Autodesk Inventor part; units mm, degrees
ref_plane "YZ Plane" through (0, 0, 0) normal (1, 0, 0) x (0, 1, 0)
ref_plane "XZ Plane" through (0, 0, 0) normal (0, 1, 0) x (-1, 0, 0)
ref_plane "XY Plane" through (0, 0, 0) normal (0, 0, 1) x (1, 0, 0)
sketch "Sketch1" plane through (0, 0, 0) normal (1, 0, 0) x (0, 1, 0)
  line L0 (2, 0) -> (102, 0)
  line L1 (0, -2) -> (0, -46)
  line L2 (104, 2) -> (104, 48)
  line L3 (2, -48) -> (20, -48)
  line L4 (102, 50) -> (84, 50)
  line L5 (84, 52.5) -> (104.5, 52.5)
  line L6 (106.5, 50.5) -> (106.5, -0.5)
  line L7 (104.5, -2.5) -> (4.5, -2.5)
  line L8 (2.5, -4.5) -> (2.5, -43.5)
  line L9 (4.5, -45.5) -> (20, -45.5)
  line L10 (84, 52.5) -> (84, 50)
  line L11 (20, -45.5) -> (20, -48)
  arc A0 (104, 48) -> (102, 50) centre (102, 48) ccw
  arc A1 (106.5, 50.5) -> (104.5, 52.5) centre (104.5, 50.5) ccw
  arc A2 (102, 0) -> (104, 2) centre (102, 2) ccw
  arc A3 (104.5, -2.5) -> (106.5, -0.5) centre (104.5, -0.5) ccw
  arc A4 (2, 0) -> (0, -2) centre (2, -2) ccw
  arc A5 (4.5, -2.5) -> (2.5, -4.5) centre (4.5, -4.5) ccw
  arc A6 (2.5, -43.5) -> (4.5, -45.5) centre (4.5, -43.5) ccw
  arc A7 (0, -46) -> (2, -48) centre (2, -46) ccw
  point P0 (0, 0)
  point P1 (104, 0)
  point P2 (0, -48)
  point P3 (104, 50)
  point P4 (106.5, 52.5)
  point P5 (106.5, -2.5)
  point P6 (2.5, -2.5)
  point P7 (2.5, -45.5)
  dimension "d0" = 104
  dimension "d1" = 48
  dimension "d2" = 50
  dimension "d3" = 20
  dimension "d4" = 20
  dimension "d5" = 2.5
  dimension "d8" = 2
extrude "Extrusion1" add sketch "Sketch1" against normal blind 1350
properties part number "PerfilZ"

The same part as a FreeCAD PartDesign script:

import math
import FreeCAD as App
import Part
import Sketcher

V = App.Vector
Q = App.Units.Quantity

doc = App.newDocument("Part")
body = doc.addObject("PartDesign::Body", "Body")

sketch1 = body.newObject("Sketcher::SketchObject", "Sketch")
sketch1.AttachmentSupport = (doc.getObject("YZ_Plane"), [""])
sketch1.MapMode = "FlatFace"
sketch1.addGeometry([
    Part.LineSegment(V(102, 0, 0), V(2, 0, 0)),
    Part.ArcOfCircle(Part.Circle(V(2, -2, 0), V(0, 0, 1), 2), math.radians(90), math.radians(180)),
    Part.LineSegment(V(0, -2, 0), V(0, -46, 0)),
    Part.ArcOfCircle(Part.Circle(V(2, -46, 0), V(0, 0, 1), 2), math.radians(180), math.radians(270)),
    Part.LineSegment(V(2, -48, 0), V(20, -48, 0)),
    Part.LineSegment(V(20, -48, 0), V(20, -45.5, 0)),
    Part.LineSegment(V(20, -45.5, 0), V(4.5, -45.5, 0)),
    Part.ArcOfCircle(Part.Circle(V(4.5, -43.5, 0), V(0, 0, 1), 2), math.radians(180), math.radians(270)),
    Part.LineSegment(V(2.5, -43.5, 0), V(2.5, -4.5, 0)),
    Part.ArcOfCircle(Part.Circle(V(4.5, -4.5, 0), V(0, 0, 1), 2), math.radians(90), math.radians(180)),
    Part.LineSegment(V(4.5, -2.5, 0), V(104.5, -2.5, 0)),
    Part.ArcOfCircle(Part.Circle(V(104.5, -0.5, 0), V(0, 0, 1), 2), math.radians(-90), math.radians(0)),
    Part.LineSegment(V(106.5, -0.5, 0), V(106.5, 50.5, 0)),
    Part.ArcOfCircle(Part.Circle(V(104.5, 50.5, 0), V(0, 0, 1), 2), math.radians(0), math.radians(90)),
    Part.LineSegment(V(104.5, 52.5, 0), V(84, 52.5, 0)),
    Part.LineSegment(V(84, 52.5, 0), V(84, 50, 0)),
    Part.LineSegment(V(84, 50, 0), V(102, 50, 0)),
    Part.ArcOfCircle(Part.Circle(V(102, 48, 0), V(0, 0, 1), 2), math.radians(0), math.radians(90)),
    Part.LineSegment(V(104, 48, 0), V(104, 2, 0)),
    Part.ArcOfCircle(Part.Circle(V(102, 2, 0), V(0, 0, 1), 2), math.radians(-90), math.radians(0)),
], False)
sketch1.addConstraint([
    Sketcher.Constraint("Tangent", 0, 2, 1, 1),
    Sketcher.Constraint("Tangent", 1, 2, 2, 1),
    Sketcher.Constraint("Tangent", 2, 2, 3, 1),
    Sketcher.Constraint("Tangent", 3, 2, 4, 1),
    Sketcher.Constraint("Coincident", 4, 2, 5, 1),
    Sketcher.Constraint("Coincident", 5, 2, 6, 1),
    Sketcher.Constraint("Tangent", 6, 2, 7, 2),
    Sketcher.Constraint("Tangent", 7, 1, 8, 1),
    Sketcher.Constraint("Tangent", 8, 2, 9, 2),
    Sketcher.Constraint("Tangent", 9, 1, 10, 1),
    Sketcher.Constraint("Tangent", 10, 2, 11, 1),
    Sketcher.Constraint("Tangent", 11, 2, 12, 1),
    Sketcher.Constraint("Tangent", 12, 2, 13, 1),
    Sketcher.Constraint("Tangent", 13, 2, 14, 1),
    Sketcher.Constraint("Coincident", 14, 2, 15, 1),
    Sketcher.Constraint("Coincident", 15, 2, 16, 1),
    Sketcher.Constraint("Tangent", 16, 2, 17, 2),
    Sketcher.Constraint("Tangent", 17, 1, 18, 1),
    Sketcher.Constraint("Tangent", 18, 2, 19, 2),
    Sketcher.Constraint("Tangent", 19, 1, 0, 1),
    Sketcher.Constraint("Horizontal", 0),
    Sketcher.Constraint("Vertical", 2),
    Sketcher.Constraint("Horizontal", 4),
    Sketcher.Constraint("Vertical", 5),
    Sketcher.Constraint("Horizontal", 6),
    Sketcher.Constraint("Vertical", 8),
    Sketcher.Constraint("Horizontal", 10),
    Sketcher.Constraint("Vertical", 12),
    Sketcher.Constraint("Horizontal", 14),
    Sketcher.Constraint("Vertical", 15),
    Sketcher.Constraint("Horizontal", 16),
    Sketcher.Constraint("Vertical", 18),
    Sketcher.Constraint("Equal", 1, 3),
    Sketcher.Constraint("Equal", 3, 7),
    Sketcher.Constraint("Equal", 7, 9),
    Sketcher.Constraint("Equal", 9, 11),
    Sketcher.Constraint("Equal", 11, 13),
    Sketcher.Constraint("Equal", 13, 17),
    Sketcher.Constraint("Equal", 17, 19),
    Sketcher.Constraint("PointOnObject", 0, 2, -1),
    Sketcher.Constraint("PointOnObject", 1, 2, -2),
    Sketcher.Constraint("Equal", 0, 10),
    Sketcher.Constraint("Equal", 4, 16),
    Sketcher.Constraint("Equal", 5, 15),
    Sketcher.Constraint("Radius", 1, Q("2 mm")),
    Sketcher.Constraint("DistanceY", 5, 1, 5, 2, Q("2.5 mm")),
    Sketcher.Constraint("DistanceY", -1, 1, 17, 3, Q("48 mm")),
    Sketcher.Constraint("DistanceY", 3, 2, -1, 1, Q("48 mm")),
    Sketcher.Constraint("DistanceX", -1, 1, 4, 2, Q("20 mm")),
    Sketcher.Constraint("DistanceX", -1, 1, 17, 1, Q("104 mm")),
    Sketcher.Constraint("DistanceX", -1, 1, 7, 1, Q("2.5 mm")),
    Sketcher.Constraint("DistanceY", 9, 1, -1, 1, Q("2.5 mm")),
])
pad1 = body.newObject("PartDesign::Pad", "Pad")
pad1.Profile = sketch1
pad1.Length = 1350
pad1.Reversed = True

doc.recompute()
